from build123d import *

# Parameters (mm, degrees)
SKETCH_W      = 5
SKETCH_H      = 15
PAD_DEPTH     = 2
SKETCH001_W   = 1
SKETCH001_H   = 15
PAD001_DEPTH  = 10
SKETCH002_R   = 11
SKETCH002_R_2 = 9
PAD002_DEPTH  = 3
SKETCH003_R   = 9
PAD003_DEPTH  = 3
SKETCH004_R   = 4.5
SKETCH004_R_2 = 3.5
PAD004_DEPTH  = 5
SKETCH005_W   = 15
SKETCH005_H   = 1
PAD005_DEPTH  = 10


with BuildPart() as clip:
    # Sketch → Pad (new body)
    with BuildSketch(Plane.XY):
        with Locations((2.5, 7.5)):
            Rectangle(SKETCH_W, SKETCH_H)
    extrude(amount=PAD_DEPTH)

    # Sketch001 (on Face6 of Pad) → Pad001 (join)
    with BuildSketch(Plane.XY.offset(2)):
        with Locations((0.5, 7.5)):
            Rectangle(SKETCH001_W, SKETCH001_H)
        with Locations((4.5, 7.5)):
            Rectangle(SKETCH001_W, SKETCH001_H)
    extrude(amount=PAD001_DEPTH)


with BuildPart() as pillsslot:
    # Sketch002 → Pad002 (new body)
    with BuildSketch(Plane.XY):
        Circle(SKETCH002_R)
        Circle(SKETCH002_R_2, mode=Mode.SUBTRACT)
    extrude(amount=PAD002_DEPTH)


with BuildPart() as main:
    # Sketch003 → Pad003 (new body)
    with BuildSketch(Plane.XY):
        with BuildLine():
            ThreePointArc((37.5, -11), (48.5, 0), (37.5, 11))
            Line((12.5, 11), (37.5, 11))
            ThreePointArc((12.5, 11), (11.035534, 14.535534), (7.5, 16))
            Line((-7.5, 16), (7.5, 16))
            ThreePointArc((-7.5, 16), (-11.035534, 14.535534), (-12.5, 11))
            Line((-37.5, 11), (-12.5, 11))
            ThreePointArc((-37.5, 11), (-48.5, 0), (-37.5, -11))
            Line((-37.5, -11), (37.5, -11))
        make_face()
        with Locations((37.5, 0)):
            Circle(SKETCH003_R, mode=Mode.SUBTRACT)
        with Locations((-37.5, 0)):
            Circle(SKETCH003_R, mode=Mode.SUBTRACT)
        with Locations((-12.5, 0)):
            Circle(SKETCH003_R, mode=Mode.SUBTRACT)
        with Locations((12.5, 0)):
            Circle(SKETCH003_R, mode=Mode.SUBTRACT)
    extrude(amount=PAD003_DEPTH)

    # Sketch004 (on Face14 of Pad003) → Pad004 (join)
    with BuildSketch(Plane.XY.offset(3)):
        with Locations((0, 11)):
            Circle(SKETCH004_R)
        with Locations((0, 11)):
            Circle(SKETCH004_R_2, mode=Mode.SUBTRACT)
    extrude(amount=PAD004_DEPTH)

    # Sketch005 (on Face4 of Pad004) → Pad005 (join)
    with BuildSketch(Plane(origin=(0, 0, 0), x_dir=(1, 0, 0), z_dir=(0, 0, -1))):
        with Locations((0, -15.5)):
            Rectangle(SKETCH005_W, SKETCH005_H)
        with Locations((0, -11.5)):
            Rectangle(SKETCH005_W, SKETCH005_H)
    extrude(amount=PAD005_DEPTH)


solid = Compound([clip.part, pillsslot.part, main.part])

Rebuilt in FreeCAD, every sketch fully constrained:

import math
import FreeCAD as App
import Part
import Sketcher
from FreeCAD import Vector


def add_polygon(sketch, points):
    """Adds a closed chain of lines whose ends are joined by coincident constraints."""
    first, n = sketch.GeometryCount, len(points)
    for a, b in zip(points, points[1:] + points[:1]):
        sketch.addGeometry(Part.LineSegment(App.Vector(*a, 0), App.Vector(*b, 0)), False)
    for i in range(n):
        sketch.addConstraint(Sketcher.Constraint("Coincident", first + i, 2, first + (i + 1) % n, 1))

doc = App.newDocument("Part")
body = doc.addObject("PartDesign::Body", "Body")

sketch1 = doc.addObject("Sketcher::SketchObject", "Sketch")
body.addObject(sketch1)
sketch1.AttachmentSupport = (doc.XY_Plane, [""])
sketch1.MapMode = "FlatFace"
add_polygon(sketch1, [(0, 15), (0, 0), (5, 0), (5, 15)])
sketch1.addConstraint([
    Sketcher.Constraint("Vertical", 0),
    Sketcher.Constraint("Horizontal", 1),
    Sketcher.Constraint("Vertical", 2),
    Sketcher.Constraint("Horizontal", 3),
    Sketcher.Constraint("Coincident", 0, 2, -1, 1),
    Sketcher.Constraint("DistanceX", 1, 1, 1, 2, 5.0),
    Sketcher.Constraint("DistanceY", 0, 2, 0, 1, 15.0),
])
pad1 = doc.addObject("PartDesign::Pad", "Pad")
body.addObject(pad1)
pad1.Profile = sketch1
pad1.Length = 2

sketch2 = doc.addObject("Sketcher::SketchObject", "Sketch001")
body.addObject(sketch2)
sketch2.AttachmentSupport = (doc.XY_Plane, [""])
sketch2.MapMode = "FlatFace"
sketch2.AttachmentOffset = App.Placement(Vector(0, 0, 2), App.Rotation())
add_polygon(sketch2, [(0, 15), (0, 0), (1, 0), (1, 15)])
add_polygon(sketch2, [(4, 15), (4, 0), (5, 0), (5, 15)])
sketch2.addConstraint([
    Sketcher.Constraint("Vertical", 0),
    Sketcher.Constraint("Horizontal", 1),
    Sketcher.Constraint("Vertical", 2),
    Sketcher.Constraint("Horizontal", 3),
    Sketcher.Constraint("Vertical", 4),
    Sketcher.Constraint("Horizontal", 5),
    Sketcher.Constraint("Vertical", 6),
    Sketcher.Constraint("Horizontal", 7),
    Sketcher.Constraint("Coincident", 0, 2, -1, 1),
    Sketcher.Constraint("PointOnObject", 4, 2, -1),
    Sketcher.Constraint("Horizontal", 3, 2, 6, 2),
    Sketcher.Constraint("Equal", 3, 5),
    Sketcher.Constraint("DistanceX", 1, 1, 1, 2, 1.0),
    Sketcher.Constraint("DistanceY", 0, 2, 0, 1, 15.0),
    Sketcher.Constraint("DistanceX", -1, 1, 4, 2, 4.0),
])
pad2 = doc.addObject("PartDesign::Pad", "Pad001")
body.addObject(pad2)
pad2.Profile = sketch2
pad2.Length = 10
body2 = doc.addObject("PartDesign::Body", "Body001")

sketch3 = doc.addObject("Sketcher::SketchObject", "Sketch002")
body2.addObject(sketch3)
sketch3.AttachmentSupport = (doc.getObject("XY_Plane001"), [""])
sketch3.MapMode = "FlatFace"
sketch3.addGeometry([
    Part.Circle(Vector(0, 0, 0), Vector(0, 0, 1), 11),
    Part.Circle(Vector(0, 0, 0), Vector(0, 0, 1), 9),
], False)
sketch3.addConstraint([
    Sketcher.Constraint("Coincident", 0, 3, -1, 1),
    Sketcher.Constraint("Coincident", 1, 3, -1, 1),
    Sketcher.Constraint("Diameter", 0, 22.0),
    Sketcher.Constraint("Diameter", 1, 18.0),
])
pad3 = doc.addObject("PartDesign::Pad", "Pad002")
body2.addObject(pad3)
pad3.Profile = sketch3
pad3.Length = 3
body3 = doc.addObject("PartDesign::Body", "Body002")

sketch4 = doc.addObject("Sketcher::SketchObject", "Sketch003")
body3.addObject(sketch4)
sketch4.AttachmentSupport = (doc.getObject("XY_Plane002"), [""])
sketch4.MapMode = "FlatFace"
sketch4.addGeometry([
    Part.ArcOfCircle(Part.Circle(Vector(37.5, 0, 0), Vector(0, 0, 1), 11), math.radians(-90), math.radians(90)),
    Part.LineSegment(Vector(37.5, 11, 0), Vector(12.5, 11, 0)),
    Part.ArcOfCircle(Part.Circle(Vector(7.5, 11, 0), Vector(0, 0, 1), 5), math.radians(0), math.radians(90)),
    Part.LineSegment(Vector(7.5, 16, 0), Vector(-7.5, 16, 0)),
    Part.ArcOfCircle(Part.Circle(Vector(-7.5, 11, 0), Vector(0, 0, 1), 5), math.radians(90), math.radians(180)),
    Part.LineSegment(Vector(-12.5, 11, 0), Vector(-37.5, 11, 0)),
    Part.ArcOfCircle(Part.Circle(Vector(-37.5, 0, 0), Vector(0, 0, 1), 11), math.radians(90), math.radians(270)),
    Part.LineSegment(Vector(-37.5, -11, 0), Vector(37.5, -11, 0)),
    Part.Circle(Vector(-37.5, 0, 0), Vector(0, 0, 1), 9),
    Part.Circle(Vector(-12.5, 0, 0), Vector(0, 0, 1), 9),
    Part.Circle(Vector(12.5, 0, 0), Vector(0, 0, 1), 9),
    Part.Circle(Vector(37.5, 0, 0), Vector(0, 0, 1), 9),
], False)
sketch4.addConstraint([
    Sketcher.Constraint("Tangent", 0, 2, 1, 1),
    Sketcher.Constraint("Coincident", 1, 2, 2, 1),
    Sketcher.Constraint("Tangent", 2, 2, 3, 1),
    Sketcher.Constraint("Tangent", 3, 2, 4, 1),
    Sketcher.Constraint("Coincident", 4, 2, 5, 1),
    Sketcher.Constraint("Tangent", 5, 2, 6, 1),
    Sketcher.Constraint("Tangent", 6, 2, 7, 1),
    Sketcher.Constraint("Tangent", 7, 2, 0, 1),
    Sketcher.Constraint("Horizontal", 1),
    Sketcher.Constraint("Horizontal", 3),
    Sketcher.Constraint("Horizontal", 5),
    Sketcher.Constraint("Horizontal", 7),
    Sketcher.Constraint("Coincident", 8, 3, 6, 3),
    Sketcher.Constraint("Coincident", 11, 3, 0, 3),
    Sketcher.Constraint("Equal", 2, 4),
    Sketcher.Constraint("Equal", 0, 6),
    Sketcher.Constraint("Equal", 8, 9),
    Sketcher.Constraint("Equal", 9, 10),
    Sketcher.Constraint("Equal", 10, 11),
    Sketcher.Constraint("Symmetric", 0, 3, 6, 3, -1, 1),
    Sketcher.Constraint("Symmetric", 9, 3, 10, 3, -1, 1),
    Sketcher.Constraint("PointOnObject", 9, 3, -1),
    Sketcher.Constraint("Horizontal", 4, 3, 0, 2),
    Sketcher.Constraint("Vertical", 10, 3, 1, 2),
    Sketcher.Constraint("Vertical", 9, 3, 4, 2),
    Sketcher.Constraint("Diameter", 8, 18.0),
    Sketcher.Constraint("Radius", 0, 11.0),
    Sketcher.Constraint("Radius", 2, 5.0),
    Sketcher.Constraint("DistanceX", 1, 2, 1, 1, 25.0),
    Sketcher.Constraint("DistanceX", 3, 2, 3, 1, 15.0),
])
pad4 = doc.addObject("PartDesign::Pad", "Pad003")
body3.addObject(pad4)
pad4.Profile = sketch4
pad4.Length = 3

sketch5 = doc.addObject("Sketcher::SketchObject", "Sketch004")
body3.addObject(sketch5)
sketch5.AttachmentSupport = (doc.getObject("XY_Plane002"), [""])
sketch5.MapMode = "FlatFace"
sketch5.AttachmentOffset = App.Placement(Vector(0, 0, 3), App.Rotation())
sketch5.addGeometry([
    Part.Circle(Vector(0, 11, 0), Vector(0, 0, 1), 4.5),
    Part.Circle(Vector(0, 11, 0), Vector(0, 0, 1), 3.5),
], False)
sketch5.addConstraint([
    Sketcher.Constraint("Coincident", 1, 3, 0, 3),
    Sketcher.Constraint("PointOnObject", 0, 3, -2),
    Sketcher.Constraint("Diameter", 0, 9.0),
    Sketcher.Constraint("Diameter", 1, 7.0),
    Sketcher.Constraint("DistanceY", -1, 1, 0, 3, 11.0),
])
pad5 = doc.addObject("PartDesign::Pad", "Pad004")
body3.addObject(pad5)
pad5.Profile = sketch5
pad5.Length = 5

sketch6 = doc.addObject("Sketcher::SketchObject", "Sketch005")
body3.addObject(sketch6)
sketch6.AttachmentSupport = (doc.getObject("XY_Plane002"), [""])
sketch6.MapMode = "FlatFace"
add_polygon(sketch6, [(-7.5, 15), (-7.5, 16), (7.5, 16), (7.5, 15)])
add_polygon(sketch6, [(-7.5, 11), (-7.5, 12), (7.5, 12), (7.5, 11)])
sketch6.addConstraint([
    Sketcher.Constraint("Vertical", 0),
    Sketcher.Constraint("Horizontal", 1),
    Sketcher.Constraint("Vertical", 2),
    Sketcher.Constraint("Horizontal", 3),
    Sketcher.Constraint("Vertical", 4),
    Sketcher.Constraint("Horizontal", 5),
    Sketcher.Constraint("Vertical", 6),
    Sketcher.Constraint("Horizontal", 7),
    Sketcher.Constraint("Vertical", 3, 2, 4, 2),
    Sketcher.Constraint("Vertical", 2, 2, 5, 2),
    Sketcher.Constraint("Equal", 2, 4),
    Sketcher.Constraint("DistanceX", 1, 1, 1, 2, 15.0),
    Sketcher.Constraint("DistanceY", 0, 1, 0, 2, 1.0),
    Sketcher.Constraint("DistanceY", -1, 1, 0, 2, 16.0),
    Sketcher.Constraint("DistanceY", -1, 1, 4, 2, 12.0),
    Sketcher.Constraint("DistanceX", 0, 2, -1, 1, 7.5),
])
pad6 = doc.addObject("PartDesign::Pad", "Pad005")
body3.addObject(pad6)
pad6.Profile = sketch6
pad6.Length = 10
pad6.Reversed = True

doc.recompute()
